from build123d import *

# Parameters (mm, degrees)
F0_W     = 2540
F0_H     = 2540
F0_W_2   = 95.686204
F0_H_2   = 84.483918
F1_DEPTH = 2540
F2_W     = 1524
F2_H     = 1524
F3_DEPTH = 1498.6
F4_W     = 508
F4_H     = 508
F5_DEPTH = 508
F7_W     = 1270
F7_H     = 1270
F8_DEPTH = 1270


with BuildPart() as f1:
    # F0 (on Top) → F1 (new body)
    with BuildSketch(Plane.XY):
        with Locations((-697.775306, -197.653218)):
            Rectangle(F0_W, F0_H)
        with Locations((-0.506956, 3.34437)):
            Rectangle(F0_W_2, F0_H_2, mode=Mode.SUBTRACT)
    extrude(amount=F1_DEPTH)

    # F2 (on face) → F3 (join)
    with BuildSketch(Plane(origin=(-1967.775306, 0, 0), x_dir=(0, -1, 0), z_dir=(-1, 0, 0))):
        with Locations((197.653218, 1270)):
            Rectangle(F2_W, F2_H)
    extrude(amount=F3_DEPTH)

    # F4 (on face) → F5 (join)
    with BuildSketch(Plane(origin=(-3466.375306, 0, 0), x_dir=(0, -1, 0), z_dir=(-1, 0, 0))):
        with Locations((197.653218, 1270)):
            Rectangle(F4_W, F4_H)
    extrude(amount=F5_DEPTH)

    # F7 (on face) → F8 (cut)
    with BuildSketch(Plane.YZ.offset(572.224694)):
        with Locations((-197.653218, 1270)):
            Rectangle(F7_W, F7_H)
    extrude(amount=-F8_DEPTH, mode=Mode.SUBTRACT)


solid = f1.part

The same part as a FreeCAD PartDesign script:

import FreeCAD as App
import Part
import Sketcher
from FreeCAD import Vector
Q = App.Units.Quantity


def add_polygon(sketch, points):
    """Adds a closed chain of lines whose ends are joined by coincident constraints."""
    first, n = sketch.GeometryCount, len(points)
    for a, b in zip(points, points[1:] + points[:1]):
        sketch.addGeometry(Part.LineSegment(App.Vector(*a, 0), App.Vector(*b, 0)), False)
    for i in range(n):
        sketch.addConstraint(Sketcher.Constraint("Coincident", first + i, 2, first + (i + 1) % n, 1))

doc = App.newDocument("Part")
params = doc.addObject("Spreadsheet::Sheet", "Params")
for row, (alias, value) in enumerate([
    ("sketch1_width", "100 in"),
    ("pad1_length", "100 in"),
    ("sketch2_width", "60 in"),
    ("pad2_length", "59 in"),
    ("sketch3_width", "20 in"),
    ("pad3_length", "20 in"),
    ("sketch4_width", "50 in"),
    ("pocket1_length", "50 in"),
], start=1):
    params.set(f"A{row}", alias)
    params.set(f"B{row}", "=" + value)
    params.setAlias(f"B{row}", alias)

body = doc.addObject("PartDesign::Body", "Body")

# Sketch on XY plane
sketch1 = doc.addObject("Sketcher::SketchObject", "Sketch")
body.addObject(sketch1)
sketch1.AttachmentSupport = (doc.XY_Plane, [""])
sketch1.MapMode = "FlatFace"
add_polygon(sketch1, [(-1967.775306, 1072.346782), (-1967.775306, -1467.653218), (572.224694, -1467.653218), (572.224694, 1072.346782)])  # lines 0-3
add_polygon(sketch1, [(47.336146, -38.897589), (-48.350058, -38.897589), (-48.350058, 45.586329), (47.336146, 45.586329)])  # lines 4-7
sketch1.addConstraint(Sketcher.Constraint("Vertical", 0))
sketch1.addConstraint(Sketcher.Constraint("Horizontal", 1))
sketch1.addConstraint(Sketcher.Constraint("Vertical", 2))
sketch1.addConstraint(Sketcher.Constraint("Horizontal", 3))
sketch1.addConstraint(Sketcher.Constraint("Horizontal", 4))
sketch1.addConstraint(Sketcher.Constraint("Vertical", 5))
sketch1.addConstraint(Sketcher.Constraint("Horizontal", 6))
sketch1.addConstraint(Sketcher.Constraint("Vertical", 7))
sketch1.addConstraint(Sketcher.Constraint("Equal", 3, 0))
sketch1.addConstraint(Sketcher.Constraint("DistanceX", 1, 1, 1, 2, Q("100 in")))
sketch1.addConstraint(Sketcher.Constraint("DistanceY", 5, 1, 5, 2, Q("84.483918 mm")))
sketch1.addConstraint(Sketcher.Constraint("DistanceX", 4, 2, 4, 1, Q("95.686204 mm")))
sketch1.addConstraint(Sketcher.Constraint("DistanceY", 0, 2, -1, 1, Q("1467.653218 mm")))
sketch1.addConstraint(Sketcher.Constraint("DistanceY", 4, 2, -1, 1, Q("38.897589 mm")))
sketch1.addConstraint(Sketcher.Constraint("DistanceX", 4, 2, 2, 2, Q("620.574752 mm")))
sketch1.addConstraint(Sketcher.Constraint("DistanceX", 0, 2, -1, 1, Q("1967.775306 mm")))
sketch1.setExpression("Constraints[17]", "Params.sketch1_width")
pad1 = doc.addObject("PartDesign::Pad", "Pad")
body.addObject(pad1)
pad1.Profile = sketch1
pad1.setExpression("Length", "Params.pad1_length")

# Sketch on YZ plane
sketch2 = doc.addObject("Sketcher::SketchObject", "Sketch001")
body.addObject(sketch2)
sketch2.AttachmentSupport = (doc.YZ_Plane, [""])
sketch2.MapMode = "FlatFace"
sketch2.AttachmentOffset = App.Placement(Vector(0, 0, -1967.775306), App.Rotation())
add_polygon(sketch2, [(564.346782, 2032), (564.346782, 508), (-959.653218, 508), (-959.653218, 2032)])  # lines 0-3
sketch2.addConstraint(Sketcher.Constraint("Vertical", 0))
sketch2.addConstraint(Sketcher.Constraint("Horizontal", 1))
sketch2.addConstraint(Sketcher.Constraint("Vertical", 2))
sketch2.addConstraint(Sketcher.Constraint("Horizontal", 3))
sketch2.addConstraint(Sketcher.Constraint("Equal", 3, 0))
sketch2.addConstraint(Sketcher.Constraint("DistanceX", 1, 2, 1, 1, Q("60 in")))
sketch2.addConstraint(Sketcher.Constraint("DistanceY", -1, 1, 0, 2, Q("20 in")))
sketch2.addConstraint(Sketcher.Constraint("DistanceX", -1, 1, 0, 2, Q("564.346782 mm")))
sketch2.setExpression("Constraints[9]", "Params.sketch2_width")
pad2 = doc.addObject("PartDesign::Pad", "Pad001")
body.addObject(pad2)
pad2.Profile = sketch2
pad2.setExpression("Length", "Params.pad2_length")
pad2.Reversed = True

# Sketch on YZ plane
sketch3 = doc.addObject("Sketcher::SketchObject", "Sketch002")
body.addObject(sketch3)
sketch3.AttachmentSupport = (doc.YZ_Plane, [""])
sketch3.MapMode = "FlatFace"
sketch3.AttachmentOffset = App.Placement(Vector(0, 0, -3466.375306), App.Rotation())
add_polygon(sketch3, [(56.346782, 1524), (56.346782, 1016), (-451.653218, 1016), (-451.653218, 1524)])  # lines 0-3
sketch3.addConstraint(Sketcher.Constraint("Vertical", 0))
sketch3.addConstraint(Sketcher.Constraint("Horizontal", 1))
sketch3.addConstraint(Sketcher.Constraint("Vertical", 2))
sketch3.addConstraint(Sketcher.Constraint("Horizontal", 3))
sketch3.addConstraint(Sketcher.Constraint("Equal", 3, 0))
sketch3.addConstraint(Sketcher.Constraint("DistanceX", 1, 2, 1, 1, Q("20 in")))
sketch3.addConstraint(Sketcher.Constraint("DistanceY", -1, 1, 0, 2, Q("40 in")))
sketch3.addConstraint(Sketcher.Constraint("DistanceX", -1, 1, 0, 2, Q("56.346782 mm")))
sketch3.setExpression("Constraints[9]", "Params.sketch3_width")
pad3 = doc.addObject("PartDesign::Pad", "Pad002")
body.addObject(pad3)
pad3.Profile = sketch3
pad3.setExpression("Length", "Params.pad3_length")
pad3.Reversed = True

# Sketch on YZ plane
sketch4 = doc.addObject("Sketcher::SketchObject", "Sketch003")
body.addObject(sketch4)
sketch4.AttachmentSupport = (doc.YZ_Plane, [""])
sketch4.MapMode = "FlatFace"
sketch4.AttachmentOffset = App.Placement(Vector(0, 0, 572.224694), App.Rotation())
add_polygon(sketch4, [(-832.653218, 1905), (-832.653218, 635), (437.346782, 635), (437.346782, 1905)])  # lines 0-3
sketch4.addConstraint(Sketcher.Constraint("Vertical", 0))
sketch4.addConstraint(Sketcher.Constraint("Horizontal", 1))
sketch4.addConstraint(Sketcher.Constraint("Vertical", 2))
sketch4.addConstraint(Sketcher.Constraint("Horizontal", 3))
sketch4.addConstraint(Sketcher.Constraint("Equal", 3, 0))
sketch4.addConstraint(Sketcher.Constraint("DistanceX", 1, 1, 1, 2, Q("50 in")))
sketch4.addConstraint(Sketcher.Constraint("DistanceY", -1, 1, 0, 2, Q("25 in")))
sketch4.addConstraint(Sketcher.Constraint("DistanceX", 0, 2, -1, 1, Q("832.653218 mm")))
sketch4.setExpression("Constraints[9]", "Params.sketch4_width")
pocket1 = doc.addObject("PartDesign::Pocket", "Pocket")
body.addObject(pocket1)
pocket1.Profile = sketch4
pocket1.setExpression("Length", "Params.pocket1_length")

doc.recompute()
